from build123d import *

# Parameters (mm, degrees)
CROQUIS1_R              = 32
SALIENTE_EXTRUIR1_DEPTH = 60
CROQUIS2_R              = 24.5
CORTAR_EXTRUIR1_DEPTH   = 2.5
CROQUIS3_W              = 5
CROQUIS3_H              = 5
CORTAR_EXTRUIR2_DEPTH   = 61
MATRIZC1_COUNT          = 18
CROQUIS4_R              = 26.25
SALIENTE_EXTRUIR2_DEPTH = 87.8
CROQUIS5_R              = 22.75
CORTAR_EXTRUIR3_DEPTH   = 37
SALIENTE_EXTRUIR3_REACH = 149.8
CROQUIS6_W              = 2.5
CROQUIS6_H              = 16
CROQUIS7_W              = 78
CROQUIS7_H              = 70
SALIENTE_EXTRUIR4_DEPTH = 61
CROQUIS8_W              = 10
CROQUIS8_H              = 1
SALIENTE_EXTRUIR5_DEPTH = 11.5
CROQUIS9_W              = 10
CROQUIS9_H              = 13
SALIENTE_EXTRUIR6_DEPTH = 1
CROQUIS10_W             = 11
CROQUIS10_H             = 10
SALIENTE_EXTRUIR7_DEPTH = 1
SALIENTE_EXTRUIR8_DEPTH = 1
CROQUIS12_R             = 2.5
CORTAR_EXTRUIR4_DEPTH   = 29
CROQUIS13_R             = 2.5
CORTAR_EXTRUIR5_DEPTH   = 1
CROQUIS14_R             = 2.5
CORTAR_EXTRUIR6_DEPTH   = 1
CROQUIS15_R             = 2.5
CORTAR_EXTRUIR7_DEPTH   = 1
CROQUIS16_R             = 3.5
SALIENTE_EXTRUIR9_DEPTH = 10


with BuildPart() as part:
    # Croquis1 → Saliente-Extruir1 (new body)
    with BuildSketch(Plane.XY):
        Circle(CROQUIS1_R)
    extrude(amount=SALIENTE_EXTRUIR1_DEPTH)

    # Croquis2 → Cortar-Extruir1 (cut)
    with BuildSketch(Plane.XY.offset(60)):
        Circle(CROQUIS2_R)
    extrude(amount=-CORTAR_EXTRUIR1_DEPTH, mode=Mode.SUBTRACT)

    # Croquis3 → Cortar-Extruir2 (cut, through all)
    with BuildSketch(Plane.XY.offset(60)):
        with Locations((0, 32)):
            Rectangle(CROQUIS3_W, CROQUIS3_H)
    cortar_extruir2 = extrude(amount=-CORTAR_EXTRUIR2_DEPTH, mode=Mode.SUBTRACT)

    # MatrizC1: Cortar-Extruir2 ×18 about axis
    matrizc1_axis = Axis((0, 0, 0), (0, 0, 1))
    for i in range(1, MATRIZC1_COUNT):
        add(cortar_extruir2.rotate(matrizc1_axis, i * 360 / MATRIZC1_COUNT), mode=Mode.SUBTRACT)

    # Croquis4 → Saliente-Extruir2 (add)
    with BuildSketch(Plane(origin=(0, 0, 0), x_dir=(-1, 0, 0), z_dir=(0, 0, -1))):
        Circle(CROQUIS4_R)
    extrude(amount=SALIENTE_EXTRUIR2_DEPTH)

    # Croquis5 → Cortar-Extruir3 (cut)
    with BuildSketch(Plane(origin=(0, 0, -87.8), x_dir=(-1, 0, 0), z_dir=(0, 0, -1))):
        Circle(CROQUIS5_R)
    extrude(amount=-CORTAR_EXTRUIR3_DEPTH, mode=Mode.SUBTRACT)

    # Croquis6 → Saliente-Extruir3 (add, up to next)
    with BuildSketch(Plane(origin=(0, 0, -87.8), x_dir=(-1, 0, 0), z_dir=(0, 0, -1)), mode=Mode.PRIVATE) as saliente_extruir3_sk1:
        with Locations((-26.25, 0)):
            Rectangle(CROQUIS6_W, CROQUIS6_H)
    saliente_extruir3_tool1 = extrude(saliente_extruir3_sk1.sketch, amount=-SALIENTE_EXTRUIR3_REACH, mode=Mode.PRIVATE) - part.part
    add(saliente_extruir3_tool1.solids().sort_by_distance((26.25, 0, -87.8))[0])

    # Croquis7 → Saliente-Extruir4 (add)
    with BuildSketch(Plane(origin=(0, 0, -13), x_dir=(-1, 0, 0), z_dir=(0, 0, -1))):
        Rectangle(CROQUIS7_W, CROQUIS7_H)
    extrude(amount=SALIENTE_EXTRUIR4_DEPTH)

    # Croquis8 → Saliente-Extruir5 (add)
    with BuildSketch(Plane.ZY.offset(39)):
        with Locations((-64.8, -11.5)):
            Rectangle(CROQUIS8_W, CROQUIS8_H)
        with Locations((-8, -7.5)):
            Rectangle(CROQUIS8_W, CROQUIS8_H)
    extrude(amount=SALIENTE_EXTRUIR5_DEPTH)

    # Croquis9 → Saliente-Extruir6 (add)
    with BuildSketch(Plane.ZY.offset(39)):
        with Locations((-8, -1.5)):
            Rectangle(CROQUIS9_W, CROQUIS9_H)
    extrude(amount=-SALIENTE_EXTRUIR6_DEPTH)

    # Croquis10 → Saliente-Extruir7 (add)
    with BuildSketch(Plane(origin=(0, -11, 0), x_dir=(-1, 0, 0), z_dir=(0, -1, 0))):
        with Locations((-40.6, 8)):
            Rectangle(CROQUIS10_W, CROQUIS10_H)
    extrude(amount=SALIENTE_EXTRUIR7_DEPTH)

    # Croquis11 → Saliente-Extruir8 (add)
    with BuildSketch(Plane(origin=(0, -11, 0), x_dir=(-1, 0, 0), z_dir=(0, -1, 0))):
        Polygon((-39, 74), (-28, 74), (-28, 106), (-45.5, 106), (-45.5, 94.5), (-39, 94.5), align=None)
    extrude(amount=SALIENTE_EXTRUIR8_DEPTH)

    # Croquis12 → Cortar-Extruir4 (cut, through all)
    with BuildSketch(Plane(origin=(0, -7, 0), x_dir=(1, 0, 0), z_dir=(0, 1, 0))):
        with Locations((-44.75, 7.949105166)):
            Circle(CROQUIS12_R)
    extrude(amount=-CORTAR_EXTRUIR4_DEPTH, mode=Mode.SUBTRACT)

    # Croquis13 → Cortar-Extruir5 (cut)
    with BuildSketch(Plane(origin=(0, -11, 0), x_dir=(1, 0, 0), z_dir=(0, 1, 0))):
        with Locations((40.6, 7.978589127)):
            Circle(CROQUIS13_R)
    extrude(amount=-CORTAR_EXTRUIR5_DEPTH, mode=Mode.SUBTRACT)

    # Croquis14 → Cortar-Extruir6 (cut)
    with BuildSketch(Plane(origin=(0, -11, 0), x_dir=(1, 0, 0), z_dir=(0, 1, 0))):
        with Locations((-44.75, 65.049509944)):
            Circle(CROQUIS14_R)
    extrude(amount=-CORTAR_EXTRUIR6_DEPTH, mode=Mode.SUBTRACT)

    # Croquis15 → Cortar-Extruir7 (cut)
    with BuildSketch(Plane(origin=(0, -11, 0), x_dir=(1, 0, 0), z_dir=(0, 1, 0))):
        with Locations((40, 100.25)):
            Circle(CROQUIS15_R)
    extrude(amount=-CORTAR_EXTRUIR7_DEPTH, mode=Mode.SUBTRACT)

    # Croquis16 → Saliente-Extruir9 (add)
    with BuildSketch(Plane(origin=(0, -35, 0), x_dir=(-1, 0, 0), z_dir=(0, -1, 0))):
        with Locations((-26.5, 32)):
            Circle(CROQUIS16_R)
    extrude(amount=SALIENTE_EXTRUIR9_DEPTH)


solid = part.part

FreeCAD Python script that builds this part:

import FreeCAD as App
import Part
import Sketcher

V = App.Vector
Q = App.Units.Quantity


def add_polygon(sketch, points):
    """Adds a closed chain of lines whose ends are joined by coincident constraints."""
    first, n = sketch.GeometryCount, len(points)
    for a, b in zip(points, points[1:] + points[:1]):
        sketch.addGeometry(Part.LineSegment(App.Vector(*a, 0), App.Vector(*b, 0)), False)
    for i in range(n):
        sketch.addConstraint(Sketcher.Constraint("Coincident", first + i, 2, first + (i + 1) % n, 1))

doc = App.newDocument("Part")
body = doc.addObject("PartDesign::Body", "Body")
body.AllowCompound = True

# Sketch on XY plane
sketch1 = body.newObject("Sketcher::SketchObject", "Sketch")
sketch1.AttachmentSupport = (doc.getObject("XY_Plane"), [""])
sketch1.MapMode = "FlatFace"
sketch1.addGeometry(Part.Circle(V(0, 0, 0), V(0, 0, 1), 32), False)
sketch1.addConstraint([
    Sketcher.Constraint("Coincident", 0, 3, -1, 1),
    Sketcher.Constraint("Diameter", 0, Q("64 mm")),
])
pad1 = body.newObject("PartDesign::Pad", "Pad")
pad1.Profile = sketch1
pad1.Length = 60

# Sketch on XY plane
sketch2 = body.newObject("Sketcher::SketchObject", "Sketch001")
sketch2.AttachmentSupport = (doc.getObject("XY_Plane"), [""])
sketch2.MapMode = "FlatFace"
sketch2.AttachmentOffset = App.Placement(V(0, 0, 60), App.Rotation())
sketch2.addGeometry(Part.Circle(V(0, 0, 0), V(0, 0, 1), 24.5), False)
sketch2.addConstraint([
    Sketcher.Constraint("Coincident", 0, 3, -1, 1),
    Sketcher.Constraint("Diameter", 0, Q("49 mm")),
])
pocket1 = body.newObject("PartDesign::Pocket", "Pocket")
pocket1.Profile = sketch2
pocket1.Length = 2.5

# Sketch on XY plane
sketch3 = body.newObject("Sketcher::SketchObject", "Sketch002")
sketch3.AttachmentSupport = (doc.getObject("XY_Plane"), [""])
sketch3.MapMode = "FlatFace"
sketch3.AttachmentOffset = App.Placement(V(0, 0, 60), App.Rotation())
add_polygon(sketch3, [(-2.5, 34.5), (-2.5, 29.5), (2.5, 29.5), (2.5, 34.5)])  # lines 0-3
sketch3.addConstraint([
    Sketcher.Constraint("Vertical", 0),
    Sketcher.Constraint("Horizontal", 1),
    Sketcher.Constraint("Vertical", 2),
    Sketcher.Constraint("Horizontal", 3),
    Sketcher.Constraint("Equal", 3, 0),
    Sketcher.Constraint("DistanceX", 1, 1, 1, 2, Q("5 mm")),
    Sketcher.Constraint("DistanceX", 0, 2, -1, 1, Q("2.5 mm")),
    Sketcher.Constraint("DistanceY", -1, 1, 0, 2, Q("29.5 mm")),
])
pocket2 = body.newObject("PartDesign::Pocket", "Pocket001")
pocket2.Profile = sketch3
pocket2.Type = "ThroughAll"
doc.recompute()

polarpattern = body.newObject("PartDesign::PolarPattern", "PolarPattern")
polarpattern.Originals = [pocket2]
polarpattern.Axis = (doc.getObject("Z_Axis"), [""])
polarpattern.Angle = 360
polarpattern.Occurrences = 18
body.Tip = polarpattern

# Sketch on XY plane
sketch4 = body.newObject("Sketcher::SketchObject", "Sketch003")
sketch4.AttachmentSupport = (doc.getObject("XY_Plane"), [""])
sketch4.MapMode = "FlatFace"
sketch4.addGeometry(Part.Circle(V(0, 0, 0), V(0, 0, 1), 26.25), False)
sketch4.addConstraint([
    Sketcher.Constraint("Coincident", 0, 3, -1, 1),
    Sketcher.Constraint("Diameter", 0, Q("52.5 mm")),
])
pad2 = body.newObject("PartDesign::Pad", "Pad001")
pad2.Profile = sketch4
pad2.Length = 87.8
pad2.Reversed = True

# Sketch on XY plane
sketch5 = body.newObject("Sketcher::SketchObject", "Sketch004")
sketch5.AttachmentSupport = (doc.getObject("XY_Plane"), [""])
sketch5.MapMode = "FlatFace"
sketch5.AttachmentOffset = App.Placement(V(0, 0, -87.8), App.Rotation())
sketch5.addGeometry(Part.Circle(V(0, 0, 0), V(0, 0, 1), 22.75), False)
sketch5.addConstraint([
    Sketcher.Constraint("Coincident", 0, 3, -1, 1),
    Sketcher.Constraint("Diameter", 0, Q("45.5 mm")),
])
pocket3 = body.newObject("PartDesign::Pocket", "Pocket002")
pocket3.Profile = sketch5
pocket3.Length = 37
pocket3.Reversed = True

# Sketch on XY plane
sketch6 = body.newObject("Sketcher::SketchObject", "Sketch005")
sketch6.AttachmentSupport = (doc.getObject("XY_Plane"), [""])
sketch6.MapMode = "FlatFace"
sketch6.AttachmentOffset = App.Placement(V(0, 0, -87.8), App.Rotation())
add_polygon(sketch6, [(27.5, 8), (27.5, -8), (25, -8), (25, 8)])  # lines 0-3
sketch6.addConstraint([
    Sketcher.Constraint("Vertical", 0),
    Sketcher.Constraint("Horizontal", 1),
    Sketcher.Constraint("Vertical", 2),
    Sketcher.Constraint("Horizontal", 3),
    Sketcher.Constraint("DistanceY", 0, 2, 0, 1, Q("16 mm")),
    Sketcher.Constraint("DistanceX", 1, 2, 1, 1, Q("2.5 mm")),
    Sketcher.Constraint("DistanceY", 0, 2, -1, 1, Q("8 mm")),
    Sketcher.Constraint("DistanceX", -1, 1, 1, 2, Q("25 mm")),
])
pad3 = body.newObject("PartDesign::Pad", "Pad002")
pad3.Profile = sketch6
pad3.Type = "UpToFirst"

# Sketch on XY plane
sketch7 = body.newObject("Sketcher::SketchObject", "Sketch006")
sketch7.AttachmentSupport = (doc.getObject("XY_Plane"), [""])
sketch7.MapMode = "FlatFace"
sketch7.AttachmentOffset = App.Placement(V(0, 0, -13), App.Rotation())
add_polygon(sketch7, [(39, 35), (39, -35), (-39, -35), (-39, 35)])  # lines 0-3
sketch7.addConstraint([
    Sketcher.Constraint("Vertical", 0),
    Sketcher.Constraint("Horizontal", 1),
    Sketcher.Constraint("Vertical", 2),
    Sketcher.Constraint("Horizontal", 3),
    Sketcher.Constraint("Symmetric", 0, 2, 2, 2, -1, 1),
    Sketcher.Constraint("DistanceX", 1, 2, 1, 1, Q("78 mm")),
    Sketcher.Constraint("DistanceY", 0, 2, 0, 1, Q("70 mm")),
])
pad4 = body.newObject("PartDesign::Pad", "Pad003")
pad4.Profile = sketch7
pad4.Length = 61
pad4.Reversed = True

# Sketch on YZ plane
sketch8 = body.newObject("Sketcher::SketchObject", "Sketch007")
sketch8.AttachmentSupport = (doc.getObject("YZ_Plane"), [""])
sketch8.MapMode = "FlatFace"
sketch8.AttachmentOffset = App.Placement(V(0, 0, -39), App.Rotation())
add_polygon(sketch8, [(-11, -69.8), (-12, -69.8), (-12, -59.8), (-11, -59.8)])  # lines 0-3
add_polygon(sketch8, [(-7, -13), (-8, -13), (-8, -3), (-7, -3)])  # lines 4-7
sketch8.addConstraint([
    Sketcher.Constraint("Horizontal", 0),
    Sketcher.Constraint("Vertical", 1),
    Sketcher.Constraint("Horizontal", 2),
    Sketcher.Constraint("Vertical", 3),
    Sketcher.Constraint("Horizontal", 4),
    Sketcher.Constraint("Vertical", 5),
    Sketcher.Constraint("Horizontal", 6),
    Sketcher.Constraint("Vertical", 7),
    Sketcher.Constraint("Equal", 2, 4),
    Sketcher.Constraint("Equal", 3, 5),
    Sketcher.Constraint("DistanceX", 0, 2, 0, 1, Q("1 mm")),
    Sketcher.Constraint("DistanceY", 1, 1, 1, 2, Q("10 mm")),
    Sketcher.Constraint("DistanceX", 0, 2, -1, 1, Q("12 mm")),
    Sketcher.Constraint("DistanceX", 4, 2, -1, 1, Q("8 mm")),
    Sketcher.Constraint("DistanceY", 4, 2, -1, 1, Q("13 mm")),
    Sketcher.Constraint("DistanceY", 0, 2, -1, 1, Q("69.8 mm")),
])
pad5 = body.newObject("PartDesign::Pad", "Pad004")
pad5.Profile = sketch8
pad5.Length = 11.5
pad5.Reversed = True

# Sketch on YZ plane
sketch9 = body.newObject("Sketcher::SketchObject", "Sketch008")
sketch9.AttachmentSupport = (doc.getObject("YZ_Plane"), [""])
sketch9.MapMode = "FlatFace"
sketch9.AttachmentOffset = App.Placement(V(0, 0, -39), App.Rotation())
add_polygon(sketch9, [(5, -13), (-8, -13), (-8, -3), (5, -3)])  # lines 0-3
sketch9.addConstraint([
    Sketcher.Constraint("Horizontal", 0),
    Sketcher.Constraint("Vertical", 1),
    Sketcher.Constraint("Horizontal", 2),
    Sketcher.Constraint("Vertical", 3),
    Sketcher.Constraint("DistanceX", 0, 2, 0, 1, Q("13 mm")),
    Sketcher.Constraint("DistanceY", 1, 1, 1, 2, Q("10 mm")),
    Sketcher.Constraint("DistanceX", 0, 2, -1, 1, Q("8 mm")),
    Sketcher.Constraint("DistanceY", 0, 2, -1, 1, Q("13 mm")),
])
pad6 = body.newObject("PartDesign::Pad", "Pad005")
pad6.Profile = sketch9
pad6.Length = 1

# Sketch on XZ plane
sketch10 = body.newObject("Sketcher::SketchObject", "Sketch009")
sketch10.AttachmentSupport = (doc.getObject("XZ_Plane"), [""])
sketch10.MapMode = "FlatFace"
sketch10.AttachmentOffset = App.Placement(V(0, 0, 11), App.Rotation())
add_polygon(sketch10, [(46.1, -13), (46.1, -3), (35.1, -3), (35.1, -13)])  # lines 0-3
sketch10.addConstraint([
    Sketcher.Constraint("Vertical", 0),
    Sketcher.Constraint("Horizontal", 1),
    Sketcher.Constraint("Vertical", 2),
    Sketcher.Constraint("Horizontal", 3),
    Sketcher.Constraint("DistanceX", 1, 2, 1, 1, Q("11 mm")),
    Sketcher.Constraint("DistanceY", 0, 1, 0, 2, Q("10 mm")),
    Sketcher.Constraint("DistanceY", 0, 2, -1, 1, Q("3 mm")),
    Sketcher.Constraint("DistanceX", -1, 1, 0, 2, Q("46.1 mm")),
])
pad7 = body.newObject("PartDesign::Pad", "Pad006")
pad7.Profile = sketch10
pad7.Length = 1

# Sketch on XZ plane
sketch11 = body.newObject("Sketcher::SketchObject", "Sketch010")
sketch11.AttachmentSupport = (doc.getObject("XZ_Plane"), [""])
sketch11.MapMode = "FlatFace"
sketch11.AttachmentOffset = App.Placement(V(0, 0, 11), App.Rotation())
add_polygon(sketch11, [(39, -74), (28, -74), (28, -106), (45.5, -106), (45.5, -94.5), (39, -94.5)])  # lines 0-5
sketch11.addConstraint([
    Sketcher.Constraint("Horizontal", 0),
    Sketcher.Constraint("Vertical", 1),
    Sketcher.Constraint("Horizontal", 2),
    Sketcher.Constraint("Vertical", 3),
    Sketcher.Constraint("Horizontal", 4),
    Sketcher.Constraint("Vertical", 5),
    Sketcher.Constraint("DistanceX", 0, 2, 0, 1, Q("11 mm")),
    Sketcher.Constraint("DistanceY", 1, 2, 1, 1, Q("32 mm")),
    Sketcher.Constraint("DistanceX", 2, 1, 2, 2, Q("17.5 mm")),
    Sketcher.Constraint("DistanceY", 3, 1, 3, 2, Q("11.5 mm")),
    Sketcher.Constraint("DistanceX", -1, 1, 0, 2, Q("28 mm")),
    Sketcher.Constraint("DistanceY", 0, 2, -1, 1, Q("74 mm")),
])
pad8 = body.newObject("PartDesign::Pad", "Pad007")
pad8.Profile = sketch11
pad8.Length = 1

# Sketch on XZ plane
sketch12 = body.newObject("Sketcher::SketchObject", "Sketch011")
sketch12.AttachmentSupport = (doc.getObject("XZ_Plane"), [""])
sketch12.MapMode = "FlatFace"
sketch12.AttachmentOffset = App.Placement(V(0, 0, 7), App.Rotation())
sketch12.addGeometry(Part.Circle(V(-44.75, -7.949105, 0), V(0, 0, 1), 2.5), False)
sketch12.addConstraint([
    Sketcher.Constraint("Diameter", 0, Q("5 mm")),
    Sketcher.Constraint("DistanceX", 0, 3, -1, 1, Q("44.75 mm")),
    Sketcher.Constraint("DistanceY", 0, 3, -1, 1, Q("7.949105 mm")),
])
pocket4 = body.newObject("PartDesign::Pocket", "Pocket003")
pocket4.Profile = sketch12
pocket4.Type = "ThroughAll"
pocket4.Reversed = True

# Sketch on XZ plane
sketch13 = body.newObject("Sketcher::SketchObject", "Sketch012")
sketch13.AttachmentSupport = (doc.getObject("XZ_Plane"), [""])
sketch13.MapMode = "FlatFace"
sketch13.AttachmentOffset = App.Placement(V(0, 0, 11), App.Rotation())
sketch13.addGeometry(Part.Circle(V(40.6, -7.978589, 0), V(0, 0, 1), 2.5), False)
sketch13.addConstraint([
    Sketcher.Constraint("Diameter", 0, Q("5 mm")),
    Sketcher.Constraint("DistanceX", -1, 1, 0, 3, Q("40.6 mm")),
    Sketcher.Constraint("DistanceY", 0, 3, -1, 1, Q("7.978589 mm")),
])
pocket5 = body.newObject("PartDesign::Pocket", "Pocket004")
pocket5.Profile = sketch13
pocket5.Length = 1
pocket5.Reversed = True

# Sketch on XZ plane
sketch14 = body.newObject("Sketcher::SketchObject", "Sketch013")
sketch14.AttachmentSupport = (doc.getObject("XZ_Plane"), [""])
sketch14.MapMode = "FlatFace"
sketch14.AttachmentOffset = App.Placement(V(0, 0, 11), App.Rotation())
sketch14.addGeometry(Part.Circle(V(-44.75, -65.04951, 0), V(0, 0, 1), 2.5), False)
sketch14.addConstraint([
    Sketcher.Constraint("Diameter", 0, Q("5 mm")),
    Sketcher.Constraint("DistanceX", 0, 3, -1, 1, Q("44.75 mm")),
    Sketcher.Constraint("DistanceY", 0, 3, -1, 1, Q("65.04951 mm")),
])
pocket6 = body.newObject("PartDesign::Pocket", "Pocket005")
pocket6.Profile = sketch14
pocket6.Length = 1
pocket6.Reversed = True

# Sketch on XZ plane
sketch15 = body.newObject("Sketcher::SketchObject", "Sketch014")
sketch15.AttachmentSupport = (doc.getObject("XZ_Plane"), [""])
sketch15.MapMode = "FlatFace"
sketch15.AttachmentOffset = App.Placement(V(0, 0, 11), App.Rotation())
sketch15.addGeometry(Part.Circle(V(40, -100.25, 0), V(0, 0, 1), 2.5), False)
sketch15.addConstraint([
    Sketcher.Constraint("Diameter", 0, Q("5 mm")),
    Sketcher.Constraint("DistanceX", -1, 1, 0, 3, Q("40 mm")),
    Sketcher.Constraint("DistanceY", 0, 3, -1, 1, Q("100.25 mm")),
])
pocket7 = body.newObject("PartDesign::Pocket", "Pocket006")
pocket7.Profile = sketch15
pocket7.Length = 1
pocket7.Reversed = True

# Sketch on XZ plane
sketch16 = body.newObject("Sketcher::SketchObject", "Sketch015")
sketch16.AttachmentSupport = (doc.getObject("XZ_Plane"), [""])
sketch16.MapMode = "FlatFace"
sketch16.AttachmentOffset = App.Placement(V(0, 0, 35), App.Rotation())
sketch16.addGeometry(Part.Circle(V(26.5, -32, 0), V(0, 0, 1), 3.5), False)
sketch16.addConstraint([
    Sketcher.Constraint("Diameter", 0, Q("7 mm")),
    Sketcher.Constraint("DistanceY", 0, 3, -1, 1, Q("32 mm")),
    Sketcher.Constraint("DistanceX", -1, 1, 0, 3, Q("26.5 mm")),
])
pad9 = body.newObject("PartDesign::Pad", "Pad008")
pad9.Profile = sketch16
pad9.Length = 10

doc.recompute()
